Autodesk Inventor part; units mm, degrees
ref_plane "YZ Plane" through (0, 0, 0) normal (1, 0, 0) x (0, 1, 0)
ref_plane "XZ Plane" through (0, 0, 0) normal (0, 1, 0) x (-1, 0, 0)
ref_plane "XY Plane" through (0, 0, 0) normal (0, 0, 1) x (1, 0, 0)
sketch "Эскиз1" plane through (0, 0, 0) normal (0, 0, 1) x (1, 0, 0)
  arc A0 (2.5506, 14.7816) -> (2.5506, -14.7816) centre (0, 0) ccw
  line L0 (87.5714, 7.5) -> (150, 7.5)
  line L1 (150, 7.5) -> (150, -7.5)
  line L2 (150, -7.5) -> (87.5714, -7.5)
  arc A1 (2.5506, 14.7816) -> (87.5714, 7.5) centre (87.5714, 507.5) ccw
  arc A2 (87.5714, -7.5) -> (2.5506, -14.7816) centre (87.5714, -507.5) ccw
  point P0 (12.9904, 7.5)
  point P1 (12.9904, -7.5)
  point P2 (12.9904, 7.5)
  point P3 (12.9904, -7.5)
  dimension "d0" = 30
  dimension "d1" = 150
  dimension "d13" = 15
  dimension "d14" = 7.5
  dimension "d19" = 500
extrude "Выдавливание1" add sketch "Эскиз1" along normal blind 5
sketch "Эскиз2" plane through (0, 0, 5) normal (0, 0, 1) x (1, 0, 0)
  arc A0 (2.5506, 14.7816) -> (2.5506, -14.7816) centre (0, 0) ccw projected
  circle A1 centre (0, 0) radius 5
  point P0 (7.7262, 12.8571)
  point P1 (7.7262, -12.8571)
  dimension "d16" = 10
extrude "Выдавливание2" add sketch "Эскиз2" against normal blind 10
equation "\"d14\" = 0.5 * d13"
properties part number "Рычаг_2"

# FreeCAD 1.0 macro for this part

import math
import FreeCAD as App
import Part
import Sketcher

V = App.Vector
Q = App.Units.Quantity

doc = App.newDocument("Part")
params = doc.addObject("Spreadsheet::Sheet", "Params")
for row, (alias, value) in enumerate([
    ("sketch1_radius", "15 mm"),
    ("sketch1_height", "15 mm"),
    ("pad1_length", "5 mm"),
    ("sketch2_diameter", "10 mm"),
    ("pad2_length", "10 mm"),
], start=1):
    params.set(f"A{row}", alias)
    params.set(f"B{row}", "=" + value)
    params.setAlias(f"B{row}", alias)

body = doc.addObject("PartDesign::Body", "Body")

# Sketch on XY plane
sketch1 = body.newObject("Sketcher::SketchObject", "Sketch")
sketch1.AttachmentSupport = (doc.getObject("XY_Plane"), [""])
sketch1.MapMode = "FlatFace"
sketch1.addGeometry(Part.ArcOfCircle(Part.Circle(V(87.572134, 507.505698, 0), V(0, 0, 1), 500.005698), math.radians(-99.79021), math.radians(-90.000084)), False)
sketch1.addGeometry(Part.ArcOfCircle(Part.Circle(V(0, 0, 0), V(0, 0, 1), 15.000042), math.radians(80.209883), math.radians(279.790117)), False)
sketch1.addGeometry(Part.ArcOfCircle(Part.Circle(V(87.571155, -507.494261, 0), V(0, 0, 1), 499.994261), math.radians(89.999972), math.radians(99.790323)), False)
sketch1.addGeometry(Part.LineSegment(V(87.5714, -7.5, 0), V(150, -7.5, 0)), False)
sketch1.addGeometry(Part.LineSegment(V(150, -7.5, 0), V(150, 7.5, 0)), False)
sketch1.addGeometry(Part.LineSegment(V(150, 7.5, 0), V(87.5714, 7.5, 0)), False)
sketch1.addConstraint(Sketcher.Constraint("Coincident", 0, 1, 1, 1))
sketch1.addConstraint(Sketcher.Constraint("Coincident", 1, 2, 2, 2))
sketch1.addConstraint(Sketcher.Constraint("Coincident", 2, 1, 3, 1))
sketch1.addConstraint(Sketcher.Constraint("Coincident", 3, 2, 4, 1))
sketch1.addConstraint(Sketcher.Constraint("Coincident", 4, 2, 5, 1))
sketch1.addConstraint(Sketcher.Constraint("Coincident", 5, 2, 0, 2))
sketch1.addConstraint(Sketcher.Constraint("Horizontal", 3))
sketch1.addConstraint(Sketcher.Constraint("Vertical", 4))
sketch1.addConstraint(Sketcher.Constraint("Horizontal", 5))
sketch1.addConstraint(Sketcher.Constraint("Coincident", 1, 3, -1, 1))
sketch1.addConstraint(Sketcher.Constraint("Radius", 1, Q("15 mm")))
sketch1.addConstraint(Sketcher.Constraint("DistanceY", 4, 1, 4, 2, Q("15 mm")))
sketch1.addConstraint(Sketcher.Constraint("DistanceX", -1, 1, 3, 2, Q("150 mm")))
sketch1.addConstraint(Sketcher.Constraint("DistanceY", 2, 1, -1, 1, Q("7.5 mm")))
sketch1.addConstraint(Sketcher.Constraint("DistanceY", 2, 3, 0, 3, Q("1015 mm")))
sketch1.addConstraint(Sketcher.Constraint("Radius", 0, Q("500.0057 mm")))
sketch1.addConstraint(Sketcher.Constraint("DistanceX", 3, 1, 3, 2, Q("62.4286 mm")))
sketch1.addConstraint(Sketcher.Constraint("DistanceX", 5, 2, 5, 1, Q("62.4286 mm")))
sketch1.addConstraint(Sketcher.Constraint("DistanceY", 0, 1, 0, 3, Q("492.724 mm")))
sketch1.addConstraint(Sketcher.Constraint("DistanceX", -1, 1, 1, 2, Q("2.5506 mm")))
sketch1.setExpression("Constraints[10]", "Params.sketch1_radius")
sketch1.setExpression("Constraints[11]", "Params.sketch1_height")
pad1 = body.newObject("PartDesign::Pad", "Pad")
pad1.Profile = sketch1
pad1.setExpression("Length", "Params.pad1_length")

# Sketch on XY plane
sketch2 = body.newObject("Sketcher::SketchObject", "Sketch001")
sketch2.AttachmentSupport = (doc.getObject("XY_Plane"), [""])
sketch2.MapMode = "FlatFace"
sketch2.AttachmentOffset = App.Placement(V(0, 0, 5), App.Rotation())
sketch2.addGeometry(Part.Circle(V(0, 0, 0), V(0, 0, 1), 5), False)
sketch2.addConstraint(Sketcher.Constraint("Coincident", 0, 3, -1, 1))
sketch2.addConstraint(Sketcher.Constraint("Diameter", 0, Q("10 mm")))
sketch2.setExpression("Constraints[1]", "Params.sketch2_diameter")
pad2 = body.newObject("PartDesign::Pad", "Pad001")
pad2.Profile = sketch2
pad2.setExpression("Length", "Params.pad2_length")
pad2.Reversed = True

doc.recompute()
